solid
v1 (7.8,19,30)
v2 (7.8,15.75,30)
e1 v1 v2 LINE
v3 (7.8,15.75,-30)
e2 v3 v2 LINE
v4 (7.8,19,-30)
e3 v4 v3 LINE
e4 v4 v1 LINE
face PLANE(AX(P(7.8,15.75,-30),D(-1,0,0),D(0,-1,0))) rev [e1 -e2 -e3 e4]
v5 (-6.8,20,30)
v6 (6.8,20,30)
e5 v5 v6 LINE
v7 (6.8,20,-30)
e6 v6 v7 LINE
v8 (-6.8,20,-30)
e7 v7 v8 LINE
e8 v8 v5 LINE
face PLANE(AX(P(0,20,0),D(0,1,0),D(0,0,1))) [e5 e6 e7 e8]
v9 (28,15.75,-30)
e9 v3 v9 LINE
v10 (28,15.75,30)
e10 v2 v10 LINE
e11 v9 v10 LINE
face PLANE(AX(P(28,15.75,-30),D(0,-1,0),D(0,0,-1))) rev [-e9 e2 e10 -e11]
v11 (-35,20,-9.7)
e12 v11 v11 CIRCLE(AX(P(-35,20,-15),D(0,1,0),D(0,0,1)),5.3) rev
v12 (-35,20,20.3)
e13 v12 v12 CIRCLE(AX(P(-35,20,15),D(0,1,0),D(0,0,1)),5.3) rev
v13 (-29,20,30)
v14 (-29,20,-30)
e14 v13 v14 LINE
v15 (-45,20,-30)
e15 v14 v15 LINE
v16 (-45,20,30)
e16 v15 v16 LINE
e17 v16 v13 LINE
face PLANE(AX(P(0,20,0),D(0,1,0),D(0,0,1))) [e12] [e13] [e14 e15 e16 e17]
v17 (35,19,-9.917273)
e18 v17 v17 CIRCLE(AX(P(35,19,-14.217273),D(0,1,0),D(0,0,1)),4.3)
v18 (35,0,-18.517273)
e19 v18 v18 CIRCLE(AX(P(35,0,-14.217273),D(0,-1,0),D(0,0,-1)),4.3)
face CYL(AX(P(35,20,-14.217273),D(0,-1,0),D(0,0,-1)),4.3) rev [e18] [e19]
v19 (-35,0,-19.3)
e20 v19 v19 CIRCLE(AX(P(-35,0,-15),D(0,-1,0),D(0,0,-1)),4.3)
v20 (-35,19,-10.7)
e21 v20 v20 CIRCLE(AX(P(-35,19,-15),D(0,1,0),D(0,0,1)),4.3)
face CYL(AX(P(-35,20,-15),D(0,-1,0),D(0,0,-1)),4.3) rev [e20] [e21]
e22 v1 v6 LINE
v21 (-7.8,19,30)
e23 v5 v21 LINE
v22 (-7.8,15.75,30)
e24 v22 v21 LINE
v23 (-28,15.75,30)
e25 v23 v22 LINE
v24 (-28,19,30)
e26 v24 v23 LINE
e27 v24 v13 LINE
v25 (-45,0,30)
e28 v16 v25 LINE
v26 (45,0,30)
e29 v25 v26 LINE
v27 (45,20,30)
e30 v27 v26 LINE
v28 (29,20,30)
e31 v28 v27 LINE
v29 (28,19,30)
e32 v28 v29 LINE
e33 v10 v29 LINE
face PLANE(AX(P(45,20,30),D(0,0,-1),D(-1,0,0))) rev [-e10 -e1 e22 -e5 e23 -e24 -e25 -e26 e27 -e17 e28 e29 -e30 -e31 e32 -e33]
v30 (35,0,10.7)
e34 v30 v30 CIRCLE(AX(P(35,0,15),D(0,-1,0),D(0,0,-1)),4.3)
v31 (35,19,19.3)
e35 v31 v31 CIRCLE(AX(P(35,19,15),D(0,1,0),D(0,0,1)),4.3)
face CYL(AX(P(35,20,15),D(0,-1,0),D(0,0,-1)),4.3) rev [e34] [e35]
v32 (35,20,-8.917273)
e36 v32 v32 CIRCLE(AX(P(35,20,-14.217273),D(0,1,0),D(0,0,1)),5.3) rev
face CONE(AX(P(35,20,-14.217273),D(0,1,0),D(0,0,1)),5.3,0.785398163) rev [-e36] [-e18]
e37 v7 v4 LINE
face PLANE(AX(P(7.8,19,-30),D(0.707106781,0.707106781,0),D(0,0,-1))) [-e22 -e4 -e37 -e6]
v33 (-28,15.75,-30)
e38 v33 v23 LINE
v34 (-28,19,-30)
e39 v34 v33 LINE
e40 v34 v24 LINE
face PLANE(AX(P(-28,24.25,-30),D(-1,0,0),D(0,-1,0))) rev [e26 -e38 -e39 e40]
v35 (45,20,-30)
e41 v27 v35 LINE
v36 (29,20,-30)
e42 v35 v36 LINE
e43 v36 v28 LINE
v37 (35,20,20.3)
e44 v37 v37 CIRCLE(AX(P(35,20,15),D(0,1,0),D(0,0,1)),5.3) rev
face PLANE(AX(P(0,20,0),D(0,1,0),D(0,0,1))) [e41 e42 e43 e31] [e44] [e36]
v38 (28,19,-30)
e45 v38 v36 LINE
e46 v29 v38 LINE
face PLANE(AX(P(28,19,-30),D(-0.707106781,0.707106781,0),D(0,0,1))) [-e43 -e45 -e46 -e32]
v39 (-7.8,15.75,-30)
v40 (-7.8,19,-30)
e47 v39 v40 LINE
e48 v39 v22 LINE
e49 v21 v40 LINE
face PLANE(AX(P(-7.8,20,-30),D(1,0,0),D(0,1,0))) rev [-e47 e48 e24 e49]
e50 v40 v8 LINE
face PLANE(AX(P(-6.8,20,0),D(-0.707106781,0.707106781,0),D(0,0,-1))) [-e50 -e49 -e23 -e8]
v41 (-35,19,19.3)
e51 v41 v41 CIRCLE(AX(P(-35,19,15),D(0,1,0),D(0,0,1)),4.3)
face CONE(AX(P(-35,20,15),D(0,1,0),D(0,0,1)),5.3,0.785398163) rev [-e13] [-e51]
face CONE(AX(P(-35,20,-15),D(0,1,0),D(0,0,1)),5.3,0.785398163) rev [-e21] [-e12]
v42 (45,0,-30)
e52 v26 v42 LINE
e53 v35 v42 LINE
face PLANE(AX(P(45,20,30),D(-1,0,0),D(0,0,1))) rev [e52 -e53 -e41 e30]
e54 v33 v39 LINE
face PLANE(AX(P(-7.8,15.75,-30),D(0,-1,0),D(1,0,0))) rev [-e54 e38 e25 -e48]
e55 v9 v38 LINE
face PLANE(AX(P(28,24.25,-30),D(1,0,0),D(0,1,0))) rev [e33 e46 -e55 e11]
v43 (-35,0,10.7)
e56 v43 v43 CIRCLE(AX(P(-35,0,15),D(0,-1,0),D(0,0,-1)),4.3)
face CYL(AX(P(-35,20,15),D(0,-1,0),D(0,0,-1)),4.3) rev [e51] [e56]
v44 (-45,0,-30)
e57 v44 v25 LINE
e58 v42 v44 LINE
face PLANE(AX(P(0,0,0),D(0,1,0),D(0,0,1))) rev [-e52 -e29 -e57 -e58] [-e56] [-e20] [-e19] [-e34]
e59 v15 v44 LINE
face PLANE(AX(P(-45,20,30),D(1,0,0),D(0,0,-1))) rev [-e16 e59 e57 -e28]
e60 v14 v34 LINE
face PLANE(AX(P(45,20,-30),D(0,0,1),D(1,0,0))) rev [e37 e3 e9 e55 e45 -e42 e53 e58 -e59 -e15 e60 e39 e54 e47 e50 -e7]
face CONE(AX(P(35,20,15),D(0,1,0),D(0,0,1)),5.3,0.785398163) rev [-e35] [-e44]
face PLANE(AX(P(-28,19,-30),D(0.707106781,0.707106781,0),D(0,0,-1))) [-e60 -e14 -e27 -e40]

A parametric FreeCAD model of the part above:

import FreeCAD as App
import Part
import Sketcher
from FreeCAD import Vector


def edges_at(feature, points):
    """Names of the edges that pass closest to the given points."""
    edges = feature.Shape.Edges
    near = lambda p: min(range(len(edges)), key=lambda i: edges[i].distToShape(Part.Vertex(*p))[0])
    return sorted({f"Edge{near(p) + 1}" for p in points})


def add_polygon(sketch, points):
    """Adds a closed chain of lines whose ends are joined by coincident constraints."""
    first, n = sketch.GeometryCount, len(points)
    for a, b in zip(points, points[1:] + points[:1]):
        sketch.addGeometry(Part.LineSegment(App.Vector(*a, 0), App.Vector(*b, 0)), False)
    for i in range(n):
        sketch.addConstraint(Sketcher.Constraint("Coincident", first + i, 2, first + (i + 1) % n, 1))

doc = App.newDocument("Part")
body = doc.addObject("PartDesign::Body", "Body")

# Sketch on XZ plane
sketch1 = body.newObject("Sketcher::SketchObject", "Sketch")
sketch1.AttachmentSupport = (doc.getObject("XZ_Plane"), [""])
sketch1.MapMode = "FlatFace"
add_polygon(sketch1, [(-45, -30), (-45, 30), (45, 30), (45, -30)])  # lines 0-3
sketch1.addConstraint(Sketcher.Constraint("Vertical", 0))
sketch1.addConstraint(Sketcher.Constraint("Horizontal", 1))
sketch1.addConstraint(Sketcher.Constraint("Vertical", 2))
sketch1.addConstraint(Sketcher.Constraint("Horizontal", 3))
sketch1.addConstraint(Sketcher.Constraint("Symmetric", 0, 2, 2, 2, -1, 1))
sketch1.addConstraint(Sketcher.Constraint("DistanceX", 1, 1, 1, 2, 90.0))
sketch1.addConstraint(Sketcher.Constraint("DistanceY", 0, 1, 0, 2, 60.0))
pad1 = body.newObject("PartDesign::Pad", "Pad")
pad1.Profile = sketch1
pad1.Length = 20
pad1.Reversed = True

# Sketch on XY plane
sketch2 = body.newObject("Sketcher::SketchObject", "Sketch001")
sketch2.AttachmentSupport = (doc.getObject("XY_Plane"), [""])
sketch2.MapMode = "FlatFace"
sketch2.AttachmentOffset = App.Placement(Vector(0, 0, 30), App.Rotation())
add_polygon(sketch2, [(28, 24.2), (-28, 24.2), (-28, 15.8), (-7.8, 15.8), (-7.8, 20), (7.8, 20), (7.8, 15.8), (28, 15.8)])  # lines 0-7
sketch2.addConstraint(Sketcher.Constraint("Horizontal", 0))
sketch2.addConstraint(Sketcher.Constraint("Vertical", 1))
sketch2.addConstraint(Sketcher.Constraint("Horizontal", 2))
sketch2.addConstraint(Sketcher.Constraint("Vertical", 3))
sketch2.addConstraint(Sketcher.Constraint("Horizontal", 4))
sketch2.addConstraint(Sketcher.Constraint("Vertical", 5))
sketch2.addConstraint(Sketcher.Constraint("Horizontal", 6))
sketch2.addConstraint(Sketcher.Constraint("Vertical", 7))
sketch2.addConstraint(Sketcher.Constraint("Symmetric", 2, 2, 5, 2, -2))
sketch2.addConstraint(Sketcher.Constraint("Equal", 2, 6))
sketch2.addConstraint(Sketcher.Constraint("DistanceX", 0, 2, 0, 1, 56.0))
sketch2.addConstraint(Sketcher.Constraint("DistanceX", 2, 1, 2, 2, 20.2))
sketch2.addConstraint(Sketcher.Constraint("DistanceY", 1, 2, 1, 1, 8.5))
sketch2.addConstraint(Sketcher.Constraint("DistanceY", -1, 1, 3, 2, 20.0))
sketch2.addConstraint(Sketcher.Constraint("DistanceY", 3, 1, 3, 2, 4.25))
pocket1 = body.newObject("PartDesign::Pocket", "Pocket")
pocket1.Profile = sketch2
pocket1.Type = "ThroughAll"

# Sketch on XZ plane
sketch3 = body.newObject("Sketcher::SketchObject", "Sketch002")
sketch3.AttachmentSupport = (doc.getObject("XZ_Plane"), [""])
sketch3.MapMode = "FlatFace"
sketch3.addGeometry(Part.Circle(Vector(-35, 15, 0), Vector(0, 0, 1), 4.3), False)
sketch3.addGeometry(Part.Circle(Vector(-35, -15, 0), Vector(0, 0, 1), 4.3), False)
sketch3.addGeometry(Part.Circle(Vector(35, -14.2, 0), Vector(0, 0, 1), 4.3), False)
sketch3.addGeometry(Part.Circle(Vector(35, 15, 0), Vector(0, 0, 1), 4.3), False)
sketch3.addConstraint(Sketcher.Constraint("Equal", 0, 1))
sketch3.addConstraint(Sketcher.Constraint("Equal", 1, 2))
sketch3.addConstraint(Sketcher.Constraint("Equal", 2, 3))
sketch3.addConstraint(Sketcher.Constraint("Symmetric", 1, 3, 3, 3, -1, 1))
sketch3.addConstraint(Sketcher.Constraint("Symmetric", 0, 3, 3, 3, -2))
sketch3.addConstraint(Sketcher.Constraint("Vertical", 2, 3, 3, 3))
sketch3.addConstraint(Sketcher.Constraint("Diameter", 0, 8.6))
sketch3.addConstraint(Sketcher.Constraint("DistanceX", 0, 3, -1, 1, 35.0))
sketch3.addConstraint(Sketcher.Constraint("DistanceY", -1, 1, 0, 3, 15.0))
sketch3.addConstraint(Sketcher.Constraint("DistanceY", 2, 3, -1, 1, 14.217273))
pocket2 = body.newObject("PartDesign::Pocket", "Pocket001")
pocket2.Profile = sketch3
pocket2.Type = "ThroughAll"
doc.recompute()

chamfer = body.newObject("PartDesign::Chamfer", "Chamfer")
chamfer.Base = (pocket2, edges_at(pocket2, [
    (28, 20, 0),
    (-28, 20, 0),
    (7.8, 20, 0),
    (-7.8, 20, 0),
]))
chamfer.Size = 1
doc.recompute()

chamfer2 = body.newObject("PartDesign::Chamfer", "Chamfer001")
chamfer2.Base = (chamfer, edges_at(chamfer, [
    (-39.3, 20, 15),
    (-39.3, 20, -15),
    (30.7, 20, -14.217),
    (30.7, 20, 15),
]))
chamfer2.Size = 1

doc.recompute()
